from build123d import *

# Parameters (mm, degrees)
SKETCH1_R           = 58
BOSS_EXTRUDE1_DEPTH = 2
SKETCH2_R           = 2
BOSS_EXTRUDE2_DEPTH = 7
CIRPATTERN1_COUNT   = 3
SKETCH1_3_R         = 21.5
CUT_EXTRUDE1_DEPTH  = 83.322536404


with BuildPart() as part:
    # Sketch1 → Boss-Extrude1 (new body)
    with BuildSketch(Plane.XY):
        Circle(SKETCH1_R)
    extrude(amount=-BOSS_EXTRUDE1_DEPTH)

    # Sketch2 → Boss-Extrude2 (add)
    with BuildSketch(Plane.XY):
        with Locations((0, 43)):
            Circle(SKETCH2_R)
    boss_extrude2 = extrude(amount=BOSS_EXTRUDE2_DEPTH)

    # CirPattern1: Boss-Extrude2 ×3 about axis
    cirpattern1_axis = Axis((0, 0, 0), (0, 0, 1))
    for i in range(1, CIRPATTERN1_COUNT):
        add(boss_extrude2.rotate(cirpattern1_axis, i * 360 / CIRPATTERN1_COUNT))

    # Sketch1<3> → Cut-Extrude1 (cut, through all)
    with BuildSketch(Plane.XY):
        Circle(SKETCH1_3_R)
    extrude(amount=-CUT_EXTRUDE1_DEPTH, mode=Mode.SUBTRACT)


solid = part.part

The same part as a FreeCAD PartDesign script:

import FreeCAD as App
import Part
import Sketcher

V = App.Vector
Q = App.Units.Quantity

doc = App.newDocument("Part")
params = doc.addObject("Spreadsheet::Sheet", "Params")
for row, (alias, value) in enumerate([
    ("sketch1_diameter", "116 mm"),
    ("pad1_length", "2 mm"),
    ("sketch2_diameter", "4 mm"),
    ("pad2_length", "7 mm"),
    ("sketch3_diameter", "43 mm"),
], start=1):
    params.set(f"A{row}", alias)
    params.set(f"B{row}", "=" + value)
    params.setAlias(f"B{row}", alias)

body = doc.addObject("PartDesign::Body", "Body")

# Sketch on XY plane
sketch1 = body.newObject("Sketcher::SketchObject", "Sketch")
sketch1.AttachmentSupport = (doc.getObject("XY_Plane"), [""])
sketch1.MapMode = "FlatFace"
sketch1.addGeometry(Part.Circle(V(0, 0, 0), V(0, 0, 1), 58), False)
sketch1.addConstraint(Sketcher.Constraint("Coincident", 0, 3, -1, 1))
sketch1.addConstraint(Sketcher.Constraint("Diameter", 0, Q("116 mm")))
sketch1.setExpression("Constraints[1]", "Params.sketch1_diameter")
pad1 = body.newObject("PartDesign::Pad", "Pad")
pad1.Profile = sketch1
pad1.setExpression("Length", "Params.pad1_length")
pad1.Reversed = True

# Sketch on XY plane
sketch2 = body.newObject("Sketcher::SketchObject", "Sketch001")
sketch2.AttachmentSupport = (doc.getObject("XY_Plane"), [""])
sketch2.MapMode = "FlatFace"
sketch2.addGeometry(Part.Circle(V(0, 43, 0), V(0, 0, 1), 2), False)
sketch2.addConstraint(Sketcher.Constraint("PointOnObject", 0, 3, -2))
sketch2.addConstraint(Sketcher.Constraint("Diameter", 0, Q("4 mm")))
sketch2.addConstraint(Sketcher.Constraint("DistanceY", -1, 1, 0, 3, Q("43 mm")))
sketch2.setExpression("Constraints[1]", "Params.sketch2_diameter")
pad2 = body.newObject("PartDesign::Pad", "Pad001")
pad2.Profile = sketch2
pad2.setExpression("Length", "Params.pad2_length")
doc.recompute()

polarpattern = body.newObject("PartDesign::PolarPattern", "PolarPattern")
polarpattern.Originals = [pad2]
polarpattern.Axis = (doc.getObject("Z_Axis"), [""])
polarpattern.Angle = 360
polarpattern.Occurrences = 3
body.Tip = polarpattern

# Sketch on XY plane
sketch3 = body.newObject("Sketcher::SketchObject", "Sketch002")
sketch3.AttachmentSupport = (doc.getObject("XY_Plane"), [""])
sketch3.MapMode = "FlatFace"
sketch3.addGeometry(Part.Circle(V(0, 0, 0), V(0, 0, 1), 21.5), False)
sketch3.addConstraint(Sketcher.Constraint("Coincident", 0, 3, -1, 1))
sketch3.addConstraint(Sketcher.Constraint("Diameter", 0, Q("43 mm")))
sketch3.setExpression("Constraints[1]", "Params.sketch3_diameter")
pocket1 = body.newObject("PartDesign::Pocket", "Pocket")
pocket1.Profile = sketch3
pocket1.Type = "ThroughAll"

doc.recompute()
